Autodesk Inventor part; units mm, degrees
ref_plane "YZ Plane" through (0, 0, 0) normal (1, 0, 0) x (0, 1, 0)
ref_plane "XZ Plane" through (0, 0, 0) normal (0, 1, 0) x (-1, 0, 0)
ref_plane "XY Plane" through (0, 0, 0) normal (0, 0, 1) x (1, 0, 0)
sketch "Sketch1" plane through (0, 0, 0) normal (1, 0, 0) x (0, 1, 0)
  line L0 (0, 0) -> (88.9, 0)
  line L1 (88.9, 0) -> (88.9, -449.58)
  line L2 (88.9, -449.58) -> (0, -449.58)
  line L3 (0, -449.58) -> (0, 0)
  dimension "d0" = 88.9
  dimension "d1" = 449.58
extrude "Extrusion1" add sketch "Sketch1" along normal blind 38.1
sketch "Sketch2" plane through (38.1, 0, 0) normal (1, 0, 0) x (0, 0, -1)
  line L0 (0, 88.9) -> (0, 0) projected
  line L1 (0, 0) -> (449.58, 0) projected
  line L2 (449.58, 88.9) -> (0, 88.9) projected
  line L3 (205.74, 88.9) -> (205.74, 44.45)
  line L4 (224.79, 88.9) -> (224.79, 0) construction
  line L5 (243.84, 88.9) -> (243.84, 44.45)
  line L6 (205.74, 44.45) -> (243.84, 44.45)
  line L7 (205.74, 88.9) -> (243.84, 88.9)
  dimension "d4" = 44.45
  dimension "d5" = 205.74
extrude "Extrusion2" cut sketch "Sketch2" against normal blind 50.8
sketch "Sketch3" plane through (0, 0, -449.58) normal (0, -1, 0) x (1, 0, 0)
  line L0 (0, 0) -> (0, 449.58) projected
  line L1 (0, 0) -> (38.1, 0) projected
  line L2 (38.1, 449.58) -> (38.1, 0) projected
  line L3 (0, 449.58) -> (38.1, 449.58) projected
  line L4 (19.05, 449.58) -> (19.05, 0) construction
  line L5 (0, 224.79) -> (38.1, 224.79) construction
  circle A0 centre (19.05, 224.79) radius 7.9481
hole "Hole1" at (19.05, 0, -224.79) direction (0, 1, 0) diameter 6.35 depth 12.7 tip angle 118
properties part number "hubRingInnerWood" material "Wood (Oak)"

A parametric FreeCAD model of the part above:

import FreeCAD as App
import Part
import Sketcher
Q = App.Units.Quantity

doc = App.newDocument("Part")
body = doc.addObject("PartDesign::Body", "Body")

# Sketch on YZ plane
sketch1 = doc.addObject("Sketcher::SketchObject", "Sketch")
body.addObject(sketch1)
sketch1.AttachmentSupport = (doc.YZ_Plane, [""])
sketch1.MapMode = "FlatFace"
sketch1.addGeometry([
    Part.LineSegment(App.Vector(89, 0, 0), App.Vector(0, 0, 0)),
    Part.LineSegment(App.Vector(0, 0, 0), App.Vector(0, -450, 0)),
    Part.LineSegment(App.Vector(0, -450, 0), App.Vector(89, -450, 0)),
    Part.LineSegment(App.Vector(89, -450, 0), App.Vector(89, 0, 0)),
], False)
sketch1.addConstraint([
    Sketcher.Constraint("Coincident", 0, 2, 1, 1),
    Sketcher.Constraint("Coincident", 1, 2, 2, 1),
    Sketcher.Constraint("Coincident", 2, 2, 3, 1),
    Sketcher.Constraint("Coincident", 3, 2, 0, 1),
    Sketcher.Constraint("Horizontal", 0),
    Sketcher.Constraint("Vertical", 1),
    Sketcher.Constraint("Horizontal", 2),
    Sketcher.Constraint("Vertical", 3),
    Sketcher.Constraint("Coincident", 0, 2, -1, 1),
    Sketcher.Constraint("DistanceX", 0, 2, 0, 1, Q("3.5 in")),
    Sketcher.Constraint("DistanceY", 1, 2, 1, 1, Q("17.7 in")),
])
pad1 = doc.addObject("PartDesign::Pad", "Pad")
body.addObject(pad1)
pad1.Profile = sketch1
pad1.Length = Q("1.5 in")

# Sketch on YZ plane
sketch2 = doc.addObject("Sketcher::SketchObject", "Sketch001")
body.addObject(sketch2)
sketch2.AttachmentSupport = (doc.YZ_Plane, [""])
sketch2.MapMode = "FlatFace"
sketch2.AttachmentOffset = App.Placement(App.Vector(0, 0, 1.5 * 25.4), App.Rotation())
sketch2.addGeometry([
    Part.LineSegment(App.Vector(44, -244, 0), App.Vector(89, -244, 0)),
    Part.LineSegment(App.Vector(89, -244, 0), App.Vector(89, -206, 0)),
    Part.LineSegment(App.Vector(89, -206, 0), App.Vector(44, -206, 0)),
    Part.LineSegment(App.Vector(44, -206, 0), App.Vector(44, -244, 0)),
], False)
sketch2.addConstraint([
    Sketcher.Constraint("Coincident", 0, 2, 1, 1),
    Sketcher.Constraint("Coincident", 1, 2, 2, 1),
    Sketcher.Constraint("Coincident", 2, 2, 3, 1),
    Sketcher.Constraint("Coincident", 3, 2, 0, 1),
    Sketcher.Constraint("Horizontal", 0),
    Sketcher.Constraint("Vertical", 1),
    Sketcher.Constraint("Horizontal", 2),
    Sketcher.Constraint("Vertical", 3),
    Sketcher.Constraint("DistanceX", 0, 1, 0, 2, Q("1.75 in")),
    Sketcher.Constraint("DistanceY", 1, 2, -1, 1, Q("8.1 in")),
    Sketcher.Constraint("DistanceX", -1, 1, 2, 2, Q("1.75 in")),
    Sketcher.Constraint("DistanceY", 1, 1, 1, 2, Q("1.5 in")),
])
pocket1 = doc.addObject("PartDesign::Pocket", "Pocket")
body.addObject(pocket1)
pocket1.Profile = sketch2
pocket1.Length = Q("2 in")

# Sketch on XZ plane
sketch3 = doc.addObject("Sketcher::SketchObject", "Sketch002")
body.addObject(sketch3)
sketch3.AttachmentSupport = (doc.XZ_Plane, [""])
sketch3.MapMode = "FlatFace"
sketch3.addGeometry(Part.Circle(App.Vector(19.1, -224.8, 0), App.Vector(0, 0, 1), 3.2), False)
sketch3.addConstraint([
    Sketcher.Constraint("Diameter", 0, Q("0.25 in")),
    Sketcher.Constraint("DistanceX", -1, 1, 0, 3, Q("0.75 in")),
    Sketcher.Constraint("DistanceY", 0, 3, -1, 1, Q("8.85 in")),
])
doc.recompute()
hole = doc.addObject("PartDesign::Hole", "Hole")
body.addObject(hole)
hole.Profile = sketch3
hole.ThreadType = "None"
hole.Diameter = Q("0.25 in")
hole.DepthType = "Dimension"
hole.Depth = Q("0.5 in")
hole.DrillPoint = "Angled"
hole.DrillPointAngle = 118

doc.recompute()
